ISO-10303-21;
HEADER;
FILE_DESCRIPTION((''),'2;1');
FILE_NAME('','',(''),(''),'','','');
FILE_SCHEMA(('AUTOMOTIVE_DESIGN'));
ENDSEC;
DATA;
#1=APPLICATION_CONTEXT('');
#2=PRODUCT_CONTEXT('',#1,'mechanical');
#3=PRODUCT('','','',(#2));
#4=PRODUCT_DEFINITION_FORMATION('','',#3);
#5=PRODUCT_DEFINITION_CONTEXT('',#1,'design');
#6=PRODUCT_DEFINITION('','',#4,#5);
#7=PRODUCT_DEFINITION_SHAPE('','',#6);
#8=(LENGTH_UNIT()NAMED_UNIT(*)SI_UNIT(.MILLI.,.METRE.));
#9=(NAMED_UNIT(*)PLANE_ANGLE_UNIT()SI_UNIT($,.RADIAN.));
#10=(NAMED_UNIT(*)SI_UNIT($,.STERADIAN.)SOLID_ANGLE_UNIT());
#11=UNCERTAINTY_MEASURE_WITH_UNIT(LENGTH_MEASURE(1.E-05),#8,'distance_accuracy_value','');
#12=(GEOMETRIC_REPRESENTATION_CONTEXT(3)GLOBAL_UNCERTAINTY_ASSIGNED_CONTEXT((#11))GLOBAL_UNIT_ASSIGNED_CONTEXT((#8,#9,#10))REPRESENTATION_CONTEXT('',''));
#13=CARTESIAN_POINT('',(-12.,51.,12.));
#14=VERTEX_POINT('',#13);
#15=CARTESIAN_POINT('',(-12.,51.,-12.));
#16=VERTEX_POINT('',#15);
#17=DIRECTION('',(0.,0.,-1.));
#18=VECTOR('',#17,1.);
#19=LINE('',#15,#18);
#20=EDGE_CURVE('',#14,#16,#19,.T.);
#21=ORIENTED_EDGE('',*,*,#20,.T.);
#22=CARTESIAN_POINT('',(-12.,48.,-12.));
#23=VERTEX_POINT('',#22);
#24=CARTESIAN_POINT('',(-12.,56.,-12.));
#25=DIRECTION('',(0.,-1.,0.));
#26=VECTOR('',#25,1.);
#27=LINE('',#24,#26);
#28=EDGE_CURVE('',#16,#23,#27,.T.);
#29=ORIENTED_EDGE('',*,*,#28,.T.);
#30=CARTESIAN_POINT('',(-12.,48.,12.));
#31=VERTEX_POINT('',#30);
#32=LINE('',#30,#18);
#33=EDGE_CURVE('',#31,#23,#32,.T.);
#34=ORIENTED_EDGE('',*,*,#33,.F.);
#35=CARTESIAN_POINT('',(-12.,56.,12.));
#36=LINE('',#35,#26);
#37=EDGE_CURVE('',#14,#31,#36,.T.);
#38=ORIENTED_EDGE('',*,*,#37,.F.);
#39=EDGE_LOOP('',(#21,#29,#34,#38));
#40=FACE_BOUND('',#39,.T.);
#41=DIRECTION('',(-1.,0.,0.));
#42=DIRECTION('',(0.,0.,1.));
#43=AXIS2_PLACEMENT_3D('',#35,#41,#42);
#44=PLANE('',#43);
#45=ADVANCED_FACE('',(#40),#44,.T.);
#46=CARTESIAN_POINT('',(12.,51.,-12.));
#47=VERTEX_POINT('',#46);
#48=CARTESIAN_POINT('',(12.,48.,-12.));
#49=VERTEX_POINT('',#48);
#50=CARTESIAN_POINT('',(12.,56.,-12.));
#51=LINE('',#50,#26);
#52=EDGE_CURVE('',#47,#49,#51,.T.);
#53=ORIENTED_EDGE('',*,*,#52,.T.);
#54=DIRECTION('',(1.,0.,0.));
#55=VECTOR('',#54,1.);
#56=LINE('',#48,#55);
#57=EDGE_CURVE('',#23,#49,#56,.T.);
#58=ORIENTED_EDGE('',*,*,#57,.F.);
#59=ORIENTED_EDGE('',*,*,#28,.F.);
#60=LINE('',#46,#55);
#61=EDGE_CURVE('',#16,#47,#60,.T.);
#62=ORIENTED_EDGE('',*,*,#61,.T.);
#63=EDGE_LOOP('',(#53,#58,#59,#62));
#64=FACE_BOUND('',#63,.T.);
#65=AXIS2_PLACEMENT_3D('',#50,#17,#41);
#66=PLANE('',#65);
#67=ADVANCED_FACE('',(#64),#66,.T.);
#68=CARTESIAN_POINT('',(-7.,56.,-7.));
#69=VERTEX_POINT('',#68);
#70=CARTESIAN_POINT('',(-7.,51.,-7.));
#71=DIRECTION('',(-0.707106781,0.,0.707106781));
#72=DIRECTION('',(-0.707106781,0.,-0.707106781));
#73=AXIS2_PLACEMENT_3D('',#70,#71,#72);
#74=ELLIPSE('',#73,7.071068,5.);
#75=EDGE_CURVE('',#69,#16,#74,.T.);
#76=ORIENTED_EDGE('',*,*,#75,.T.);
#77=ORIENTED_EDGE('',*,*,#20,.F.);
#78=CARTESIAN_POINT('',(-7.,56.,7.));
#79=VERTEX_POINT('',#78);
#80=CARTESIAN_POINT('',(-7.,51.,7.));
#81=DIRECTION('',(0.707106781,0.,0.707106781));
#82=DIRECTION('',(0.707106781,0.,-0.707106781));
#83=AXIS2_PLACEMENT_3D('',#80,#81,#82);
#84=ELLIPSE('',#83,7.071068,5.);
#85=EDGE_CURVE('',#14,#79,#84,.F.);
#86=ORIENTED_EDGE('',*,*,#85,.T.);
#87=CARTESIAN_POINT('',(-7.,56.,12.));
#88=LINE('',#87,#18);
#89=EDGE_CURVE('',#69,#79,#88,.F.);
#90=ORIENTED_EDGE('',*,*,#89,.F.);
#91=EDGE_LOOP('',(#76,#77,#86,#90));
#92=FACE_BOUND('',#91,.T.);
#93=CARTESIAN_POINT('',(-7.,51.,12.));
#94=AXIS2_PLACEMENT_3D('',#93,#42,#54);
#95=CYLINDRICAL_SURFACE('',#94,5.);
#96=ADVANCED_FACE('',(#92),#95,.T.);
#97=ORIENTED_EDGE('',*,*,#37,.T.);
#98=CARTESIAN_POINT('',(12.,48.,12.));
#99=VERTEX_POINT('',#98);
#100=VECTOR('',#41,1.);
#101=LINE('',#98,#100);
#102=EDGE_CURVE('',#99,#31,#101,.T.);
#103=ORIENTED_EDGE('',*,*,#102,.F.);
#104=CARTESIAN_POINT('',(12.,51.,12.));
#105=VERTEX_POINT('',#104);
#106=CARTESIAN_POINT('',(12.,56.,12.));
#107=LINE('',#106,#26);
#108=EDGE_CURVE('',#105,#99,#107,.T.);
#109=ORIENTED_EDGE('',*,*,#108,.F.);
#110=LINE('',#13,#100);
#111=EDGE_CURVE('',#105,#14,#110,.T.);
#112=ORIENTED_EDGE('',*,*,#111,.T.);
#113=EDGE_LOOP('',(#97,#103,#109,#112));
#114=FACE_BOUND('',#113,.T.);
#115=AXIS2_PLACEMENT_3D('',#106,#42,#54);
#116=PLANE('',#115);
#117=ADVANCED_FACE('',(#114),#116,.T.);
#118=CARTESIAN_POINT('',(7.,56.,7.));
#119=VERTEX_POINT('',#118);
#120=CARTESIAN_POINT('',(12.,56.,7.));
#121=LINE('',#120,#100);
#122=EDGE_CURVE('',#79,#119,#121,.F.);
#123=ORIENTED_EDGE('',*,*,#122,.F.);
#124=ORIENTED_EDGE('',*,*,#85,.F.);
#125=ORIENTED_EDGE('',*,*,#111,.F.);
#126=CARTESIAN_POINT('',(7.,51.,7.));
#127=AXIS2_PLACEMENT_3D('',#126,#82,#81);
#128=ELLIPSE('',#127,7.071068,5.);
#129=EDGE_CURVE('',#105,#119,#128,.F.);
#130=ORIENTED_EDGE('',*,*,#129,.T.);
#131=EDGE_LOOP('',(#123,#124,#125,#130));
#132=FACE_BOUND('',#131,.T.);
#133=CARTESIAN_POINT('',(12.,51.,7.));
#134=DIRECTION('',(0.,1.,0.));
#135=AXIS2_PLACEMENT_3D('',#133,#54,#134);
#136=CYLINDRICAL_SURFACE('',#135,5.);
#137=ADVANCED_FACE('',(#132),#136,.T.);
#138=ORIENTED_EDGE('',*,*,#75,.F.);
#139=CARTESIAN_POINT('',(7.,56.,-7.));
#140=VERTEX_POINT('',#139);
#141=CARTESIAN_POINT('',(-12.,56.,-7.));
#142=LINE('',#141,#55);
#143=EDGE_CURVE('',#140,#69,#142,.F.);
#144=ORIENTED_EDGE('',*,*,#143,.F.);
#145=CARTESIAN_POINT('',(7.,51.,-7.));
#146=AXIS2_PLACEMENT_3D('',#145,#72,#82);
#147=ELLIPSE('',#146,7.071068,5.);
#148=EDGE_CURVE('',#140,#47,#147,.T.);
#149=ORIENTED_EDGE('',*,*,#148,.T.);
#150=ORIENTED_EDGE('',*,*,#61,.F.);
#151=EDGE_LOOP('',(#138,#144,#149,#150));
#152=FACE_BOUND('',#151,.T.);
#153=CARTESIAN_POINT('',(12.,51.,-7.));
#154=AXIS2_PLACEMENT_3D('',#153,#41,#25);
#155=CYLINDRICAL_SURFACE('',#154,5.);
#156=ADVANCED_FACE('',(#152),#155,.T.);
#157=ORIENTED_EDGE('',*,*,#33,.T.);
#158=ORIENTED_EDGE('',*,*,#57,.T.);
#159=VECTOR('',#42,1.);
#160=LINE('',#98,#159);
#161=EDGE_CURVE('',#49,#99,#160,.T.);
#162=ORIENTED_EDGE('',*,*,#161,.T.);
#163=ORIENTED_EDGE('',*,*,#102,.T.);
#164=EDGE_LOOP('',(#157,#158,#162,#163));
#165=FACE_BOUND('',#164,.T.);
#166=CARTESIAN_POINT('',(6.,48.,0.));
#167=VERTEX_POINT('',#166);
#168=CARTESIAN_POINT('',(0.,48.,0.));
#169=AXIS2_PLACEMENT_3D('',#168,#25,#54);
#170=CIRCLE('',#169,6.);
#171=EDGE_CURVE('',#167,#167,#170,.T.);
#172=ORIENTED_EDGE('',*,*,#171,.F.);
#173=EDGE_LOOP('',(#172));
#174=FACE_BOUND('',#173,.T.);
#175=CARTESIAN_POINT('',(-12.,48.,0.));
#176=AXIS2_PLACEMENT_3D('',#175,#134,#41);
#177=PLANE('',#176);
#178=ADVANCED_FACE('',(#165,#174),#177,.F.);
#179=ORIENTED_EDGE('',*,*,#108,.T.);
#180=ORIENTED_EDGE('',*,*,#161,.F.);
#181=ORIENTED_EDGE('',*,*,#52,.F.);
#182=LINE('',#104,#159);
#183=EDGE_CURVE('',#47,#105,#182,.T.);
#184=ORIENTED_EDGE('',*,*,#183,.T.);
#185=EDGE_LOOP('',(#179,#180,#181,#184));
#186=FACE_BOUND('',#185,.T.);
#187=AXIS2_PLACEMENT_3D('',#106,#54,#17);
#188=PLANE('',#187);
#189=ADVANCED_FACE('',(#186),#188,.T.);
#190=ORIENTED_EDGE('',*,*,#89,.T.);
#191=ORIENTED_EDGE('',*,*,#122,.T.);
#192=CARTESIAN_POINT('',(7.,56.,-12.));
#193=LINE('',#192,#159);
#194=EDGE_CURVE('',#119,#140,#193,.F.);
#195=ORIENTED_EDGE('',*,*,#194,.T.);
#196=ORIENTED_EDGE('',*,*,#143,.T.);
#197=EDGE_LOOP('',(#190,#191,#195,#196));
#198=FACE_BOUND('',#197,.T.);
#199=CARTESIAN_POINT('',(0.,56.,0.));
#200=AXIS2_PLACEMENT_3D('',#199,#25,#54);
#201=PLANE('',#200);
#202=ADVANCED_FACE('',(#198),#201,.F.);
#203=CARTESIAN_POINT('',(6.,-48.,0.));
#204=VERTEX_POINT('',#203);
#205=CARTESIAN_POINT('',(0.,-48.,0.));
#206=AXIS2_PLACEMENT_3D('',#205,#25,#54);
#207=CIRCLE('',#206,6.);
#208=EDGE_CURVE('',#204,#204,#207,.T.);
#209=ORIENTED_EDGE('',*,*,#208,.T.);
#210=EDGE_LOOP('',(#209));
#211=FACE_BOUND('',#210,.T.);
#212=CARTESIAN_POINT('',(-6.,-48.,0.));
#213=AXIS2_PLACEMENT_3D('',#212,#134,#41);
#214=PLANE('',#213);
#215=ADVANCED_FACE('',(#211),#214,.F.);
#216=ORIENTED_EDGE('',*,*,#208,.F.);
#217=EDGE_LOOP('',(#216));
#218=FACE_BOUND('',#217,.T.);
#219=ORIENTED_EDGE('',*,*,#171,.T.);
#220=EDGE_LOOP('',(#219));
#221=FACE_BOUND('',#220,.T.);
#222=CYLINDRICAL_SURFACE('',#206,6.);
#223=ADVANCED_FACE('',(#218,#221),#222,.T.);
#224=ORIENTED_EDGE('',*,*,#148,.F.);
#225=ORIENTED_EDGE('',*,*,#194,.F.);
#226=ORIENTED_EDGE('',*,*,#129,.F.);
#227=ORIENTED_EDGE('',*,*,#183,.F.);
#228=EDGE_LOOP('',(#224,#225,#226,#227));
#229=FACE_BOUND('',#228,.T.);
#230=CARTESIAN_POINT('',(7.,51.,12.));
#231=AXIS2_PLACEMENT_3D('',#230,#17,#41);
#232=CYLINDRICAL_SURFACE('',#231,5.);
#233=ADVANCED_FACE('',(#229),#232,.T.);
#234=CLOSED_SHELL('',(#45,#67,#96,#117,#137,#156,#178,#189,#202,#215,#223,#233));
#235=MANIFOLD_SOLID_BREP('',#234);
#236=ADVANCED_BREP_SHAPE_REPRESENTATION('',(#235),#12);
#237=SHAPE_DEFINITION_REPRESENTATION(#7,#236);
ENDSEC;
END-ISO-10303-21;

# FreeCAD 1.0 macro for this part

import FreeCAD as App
import Part
import Sketcher


def edges_at(feature, points):
    """Names of the edges that pass closest to the given points."""
    edges = feature.Shape.Edges
    near = lambda p: min(range(len(edges)), key=lambda i: edges[i].distToShape(Part.Vertex(*p))[0])
    return sorted({f"Edge{near(p) + 1}" for p in points})

doc = App.newDocument("Part")
body = doc.addObject("PartDesign::Body", "Body")

# Sketch on XY plane
sketch1 = body.newObject("Sketcher::SketchObject", "Sketch")
sketch1.AttachmentSupport = (doc.getObject("XY_Plane"), [""])
sketch1.MapMode = "FlatFace"
sketch1.addGeometry([
    Part.LineSegment(App.Vector(0, 56, 0), App.Vector(-12, 56, 0)),  # 0
    Part.LineSegment(App.Vector(-12, 56, 0), App.Vector(-12, 48, 0)),  # 1
    Part.LineSegment(App.Vector(-12, 48, 0), App.Vector(-6, 48, 0)),  # 2
    Part.LineSegment(App.Vector(-6, 48, 0), App.Vector(-6, -48, 0)),  # 3
    Part.LineSegment(App.Vector(-6, -48, 0), App.Vector(0, -48, 0)),  # 4
    Part.LineSegment(App.Vector(0, -48, 0), App.Vector(0, 56, 0)),  # 5
], False)
sketch1.addConstraint([
    Sketcher.Constraint("Coincident", 0, 2, 1, 1),
    Sketcher.Constraint("Coincident", 1, 2, 2, 1),
    Sketcher.Constraint("Coincident", 2, 2, 3, 1),
    Sketcher.Constraint("Coincident", 3, 2, 4, 1),
    Sketcher.Constraint("Coincident", 4, 2, 5, 1),
    Sketcher.Constraint("Coincident", 5, 2, 0, 1),
    Sketcher.Constraint("Horizontal", 0),
    Sketcher.Constraint("Vertical", 1),
    Sketcher.Constraint("Horizontal", 2),
    Sketcher.Constraint("Vertical", 3),
    Sketcher.Constraint("Horizontal", 4),
    Sketcher.Constraint("Vertical", 5),
    Sketcher.Constraint("PointOnObject", 4, 2, -2),
    Sketcher.Constraint("Equal", 2, 4),
    Sketcher.Constraint("DistanceX", 0, 2, 0, 1, 12.0),
    Sketcher.Constraint("DistanceY", 1, 2, 1, 1, 8.0),
    Sketcher.Constraint("DistanceY", 3, 2, 3, 1, 96.0),
    Sketcher.Constraint("DistanceY", -1, 1, 0, 2, 56.0),
])
revolution = body.newObject("PartDesign::Revolution", "Revolution")
revolution.Profile = sketch1
revolution.ReferenceAxis = (sketch1, ["V_Axis"])
revolution.Angle = 360

# Sketch on XZ plane
sketch2 = body.newObject("Sketcher::SketchObject", "Sketch001")
sketch2.AttachmentSupport = (doc.getObject("XZ_Plane"), [""])
sketch2.MapMode = "FlatFace"
sketch2.AttachmentOffset = App.Placement(App.Vector(0, 0, -48), App.Rotation())
sketch2.addGeometry([
    Part.LineSegment(App.Vector(-12, 12, 0), App.Vector(-12, -12, 0)),
    Part.LineSegment(App.Vector(-12, -12, 0), App.Vector(12, -12, 0)),
    Part.LineSegment(App.Vector(12, -12, 0), App.Vector(12, 12, 0)),
    Part.LineSegment(App.Vector(12, 12, 0), App.Vector(-12, 12, 0)),
], False)
sketch2.addConstraint([
    Sketcher.Constraint("Coincident", 0, 2, 1, 1),
    Sketcher.Constraint("Coincident", 1, 2, 2, 1),
    Sketcher.Constraint("Coincident", 2, 2, 3, 1),
    Sketcher.Constraint("Coincident", 3, 2, 0, 1),
    Sketcher.Constraint("Vertical", 0),
    Sketcher.Constraint("Horizontal", 1),
    Sketcher.Constraint("Vertical", 2),
    Sketcher.Constraint("Horizontal", 3),
    Sketcher.Constraint("Symmetric", 0, 2, 2, 2, -1, 1),
    Sketcher.Constraint("Equal", 3, 0),
    Sketcher.Constraint("DistanceX", 1, 1, 1, 2, 24.0),
])
pad1 = body.newObject("PartDesign::Pad", "Pad")
pad1.Profile = sketch2
pad1.Length = 8
pad1.Reversed = True
doc.recompute()

fillet = body.newObject("PartDesign::Fillet", "Fillet")
fillet.Base = (pad1, edges_at(pad1, [
    (-12, 56, 0),
    (0, 56, 12),
    (12, 56, 0),
    (0, 56, -12),
]))
fillet.Radius = 5

doc.recompute()
